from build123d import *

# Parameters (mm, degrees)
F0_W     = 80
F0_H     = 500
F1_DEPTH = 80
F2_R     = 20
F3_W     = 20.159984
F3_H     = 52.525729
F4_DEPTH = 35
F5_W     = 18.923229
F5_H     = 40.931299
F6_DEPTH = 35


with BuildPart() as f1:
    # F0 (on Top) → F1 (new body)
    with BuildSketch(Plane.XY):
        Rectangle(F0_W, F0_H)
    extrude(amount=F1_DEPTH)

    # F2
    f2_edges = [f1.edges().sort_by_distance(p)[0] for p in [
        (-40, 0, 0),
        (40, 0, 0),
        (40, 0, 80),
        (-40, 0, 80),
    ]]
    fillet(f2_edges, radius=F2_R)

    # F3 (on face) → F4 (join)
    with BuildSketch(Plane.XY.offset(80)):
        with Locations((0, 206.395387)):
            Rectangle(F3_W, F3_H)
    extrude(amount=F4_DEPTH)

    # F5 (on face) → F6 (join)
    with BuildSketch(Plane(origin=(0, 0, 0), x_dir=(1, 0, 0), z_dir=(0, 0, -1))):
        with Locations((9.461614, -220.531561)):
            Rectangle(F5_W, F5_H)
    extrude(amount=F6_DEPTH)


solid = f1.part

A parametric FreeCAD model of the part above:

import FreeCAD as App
import Part
import Sketcher

V = App.Vector


def edges_at(feature, points):
    """Names of the edges that pass closest to the given points."""
    edges = feature.Shape.Edges
    near = lambda p: min(range(len(edges)), key=lambda i: edges[i].distToShape(Part.Vertex(*p))[0])
    return sorted({f"Edge{near(p) + 1}" for p in points})


def add_polygon(sketch, points):
    """Adds a closed chain of lines whose ends are joined by coincident constraints."""
    first, n = sketch.GeometryCount, len(points)
    for a, b in zip(points, points[1:] + points[:1]):
        sketch.addGeometry(Part.LineSegment(App.Vector(*a, 0), App.Vector(*b, 0)), False)
    for i in range(n):
        sketch.addConstraint(Sketcher.Constraint("Coincident", first + i, 2, first + (i + 1) % n, 1))

doc = App.newDocument("Part")
body = doc.addObject("PartDesign::Body", "Body")

# Sketch on XY plane
sketch1 = body.newObject("Sketcher::SketchObject", "Sketch")
sketch1.AttachmentSupport = (doc.getObject("XY_Plane"), [""])
sketch1.MapMode = "FlatFace"
add_polygon(sketch1, [(-40, 250), (-40, -250), (40, -250), (40, 250)])  # lines 0-3
sketch1.addConstraint([
    Sketcher.Constraint("Vertical", 0),
    Sketcher.Constraint("Horizontal", 1),
    Sketcher.Constraint("Vertical", 2),
    Sketcher.Constraint("Horizontal", 3),
    Sketcher.Constraint("Symmetric", 0, 2, 2, 2, -1, 1),
    Sketcher.Constraint("DistanceX", 1, 1, 1, 2, 80.0),
    Sketcher.Constraint("DistanceY", 0, 2, 0, 1, 500.0),
])
pad1 = body.newObject("PartDesign::Pad", "Pad")
pad1.Profile = sketch1
pad1.Length = 80
doc.recompute()

fillet = body.newObject("PartDesign::Fillet", "Fillet")
fillet.Base = (pad1, edges_at(pad1, [
    (-40, 0, 0),
    (40, 0, 0),
    (40, 0, 80),
    (-40, 0, 80),
]))
fillet.Radius = 20

# Sketch on XY plane
sketch2 = body.newObject("Sketcher::SketchObject", "Sketch001")
sketch2.AttachmentSupport = (doc.getObject("XY_Plane"), [""])
sketch2.MapMode = "FlatFace"
sketch2.AttachmentOffset = App.Placement(V(0, 0, 80), App.Rotation())
add_polygon(sketch2, [(-10, 233), (-10, 180), (10, 180), (10, 233)])  # lines 0-3
sketch2.addConstraint([
    Sketcher.Constraint("Vertical", 0),
    Sketcher.Constraint("Horizontal", 1),
    Sketcher.Constraint("Vertical", 2),
    Sketcher.Constraint("Horizontal", 3),
    Sketcher.Constraint("DistanceY", 0, 2, 0, 1, 52.525729),
    Sketcher.Constraint("DistanceX", 1, 1, 1, 2, 20.159984),
    Sketcher.Constraint("DistanceY", -1, 1, 2, 2, 232.658252),
    Sketcher.Constraint("DistanceX", 0, 2, -1, 1, 10.079992),
])
pad2 = body.newObject("PartDesign::Pad", "Pad001")
pad2.Profile = sketch2
pad2.Length = 35

# Sketch on XY plane
sketch3 = body.newObject("Sketcher::SketchObject", "Sketch002")
sketch3.AttachmentSupport = (doc.getObject("XY_Plane"), [""])
sketch3.MapMode = "FlatFace"
add_polygon(sketch3, [(0, 200), (0, 241), (19, 241), (19, 200)])  # lines 0-3
sketch3.addConstraint([
    Sketcher.Constraint("Vertical", 0),
    Sketcher.Constraint("Horizontal", 1),
    Sketcher.Constraint("Vertical", 2),
    Sketcher.Constraint("Horizontal", 3),
    Sketcher.Constraint("PointOnObject", 0, 2, -2),
    Sketcher.Constraint("DistanceY", 0, 1, 0, 2, 40.931299),
    Sketcher.Constraint("DistanceX", 1, 1, 1, 2, 18.923229),
    Sketcher.Constraint("DistanceY", -1, 1, 0, 2, 240.99721),
])
pad3 = body.newObject("PartDesign::Pad", "Pad002")
pad3.Profile = sketch3
pad3.Length = 35
pad3.Reversed = True

doc.recompute()
